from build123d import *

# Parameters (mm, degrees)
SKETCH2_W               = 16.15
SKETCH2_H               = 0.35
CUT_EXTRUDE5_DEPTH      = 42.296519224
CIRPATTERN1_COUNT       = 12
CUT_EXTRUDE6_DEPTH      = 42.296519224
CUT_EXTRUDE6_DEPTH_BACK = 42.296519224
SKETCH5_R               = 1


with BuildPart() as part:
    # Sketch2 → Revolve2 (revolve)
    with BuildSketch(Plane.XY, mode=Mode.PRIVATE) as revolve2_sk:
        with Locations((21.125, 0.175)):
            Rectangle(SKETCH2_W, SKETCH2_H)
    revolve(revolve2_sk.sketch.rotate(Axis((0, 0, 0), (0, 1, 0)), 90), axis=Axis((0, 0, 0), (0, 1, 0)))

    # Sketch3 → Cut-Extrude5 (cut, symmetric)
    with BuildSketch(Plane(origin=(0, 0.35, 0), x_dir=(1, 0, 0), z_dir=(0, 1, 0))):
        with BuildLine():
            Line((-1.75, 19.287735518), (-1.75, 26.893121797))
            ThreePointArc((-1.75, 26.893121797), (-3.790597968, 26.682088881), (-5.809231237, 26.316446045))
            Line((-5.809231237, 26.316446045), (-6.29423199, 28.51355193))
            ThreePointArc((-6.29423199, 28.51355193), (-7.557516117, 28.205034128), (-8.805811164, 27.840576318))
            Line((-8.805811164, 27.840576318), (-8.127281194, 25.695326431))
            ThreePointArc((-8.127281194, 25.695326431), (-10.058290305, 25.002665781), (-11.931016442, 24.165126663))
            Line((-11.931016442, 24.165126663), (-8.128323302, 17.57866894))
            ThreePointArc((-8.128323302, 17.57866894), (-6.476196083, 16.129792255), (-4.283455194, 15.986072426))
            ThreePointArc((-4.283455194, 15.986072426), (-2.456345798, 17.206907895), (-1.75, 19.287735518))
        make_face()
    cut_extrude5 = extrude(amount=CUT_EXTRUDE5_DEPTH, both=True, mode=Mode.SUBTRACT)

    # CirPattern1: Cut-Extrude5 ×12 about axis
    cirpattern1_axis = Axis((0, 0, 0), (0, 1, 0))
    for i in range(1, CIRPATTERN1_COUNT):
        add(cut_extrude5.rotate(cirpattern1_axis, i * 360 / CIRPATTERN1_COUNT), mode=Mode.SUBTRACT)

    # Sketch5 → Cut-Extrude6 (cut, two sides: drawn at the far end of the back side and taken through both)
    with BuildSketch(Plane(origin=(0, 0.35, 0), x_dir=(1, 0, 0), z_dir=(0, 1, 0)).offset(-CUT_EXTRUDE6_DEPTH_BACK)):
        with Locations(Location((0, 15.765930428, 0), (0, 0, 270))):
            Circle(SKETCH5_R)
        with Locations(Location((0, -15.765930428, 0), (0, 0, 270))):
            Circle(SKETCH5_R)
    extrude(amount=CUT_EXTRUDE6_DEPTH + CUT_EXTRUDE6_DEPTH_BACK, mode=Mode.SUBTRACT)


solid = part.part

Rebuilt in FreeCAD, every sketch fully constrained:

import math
import FreeCAD as App
import Part
import Sketcher

V = App.Vector
Q = App.Units.Quantity


def add_polygon(sketch, points):
    """Adds a closed chain of lines whose ends are joined by coincident constraints."""
    first, n = sketch.GeometryCount, len(points)
    for a, b in zip(points, points[1:] + points[:1]):
        sketch.addGeometry(Part.LineSegment(App.Vector(*a, 0), App.Vector(*b, 0)), False)
    for i in range(n):
        sketch.addConstraint(Sketcher.Constraint("Coincident", first + i, 2, first + (i + 1) % n, 1))

doc = App.newDocument("Part")
body = doc.addObject("PartDesign::Body", "Body")

sketch1 = body.newObject("Sketcher::SketchObject", "Sketch")
sketch1.AttachmentSupport = (doc.getObject("XY_Plane"), [""])
sketch1.MapMode = "FlatFace"
add_polygon(sketch1, [(13.05, 0.35), (13.05, 0), (29.2, 0), (29.2, 0.35)])
sketch1.addConstraint(Sketcher.Constraint("Vertical", 0))
sketch1.addConstraint(Sketcher.Constraint("Horizontal", 1))
sketch1.addConstraint(Sketcher.Constraint("Vertical", 2))
sketch1.addConstraint(Sketcher.Constraint("Horizontal", 3))
sketch1.addConstraint(Sketcher.Constraint("PointOnObject", 0, 2, -1))
sketch1.addConstraint(Sketcher.Constraint("DistanceX", 1, 1, 1, 2, Q("16.15 mm")))
sketch1.addConstraint(Sketcher.Constraint("DistanceY", 0, 2, 0, 1, Q("0.35 mm")))
sketch1.addConstraint(Sketcher.Constraint("DistanceX", -1, 1, 1, 2, Q("29.2 mm")))
revolution = body.newObject("PartDesign::Revolution", "Revolution")
revolution.Profile = sketch1
revolution.ReferenceAxis = (sketch1, ["V_Axis"])
revolution.Angle = 360

sketch2 = body.newObject("Sketcher::SketchObject", "Sketch001")
sketch2.AttachmentSupport = (doc.getObject("XZ_Plane"), [""])
sketch2.MapMode = "FlatFace"
sketch2.AttachmentOffset = App.Placement(V(0, 0, -0.35), App.Rotation())
sketch2.addGeometry(Part.LineSegment(V(-1.8, -19.3, 0), V(-1.8, -26.9, 0)), False)
sketch2.addGeometry(Part.ArcOfCircle(Part.Circle(V(0, 0, 0), V(0, 0, 1), 26.9), math.radians(-102.45), math.radians(-93.72)), False)
sketch2.addGeometry(Part.LineSegment(V(-5.8, -26.3, 0), V(-6.3, -28.5, 0)), False)
sketch2.addGeometry(Part.ArcOfCircle(Part.Circle(V(0, 0, 0), V(0, 0, 1), 29.2), math.radians(-107.55), math.radians(-102.45)), False)
sketch2.addGeometry(Part.LineSegment(V(-8.8, -27.8, 0), V(-8.1, -25.7, 0)), False)
sketch2.addGeometry(Part.ArcOfCircle(Part.Circle(V(0, 0, 0), V(0, 0, 1), 26.9), math.radians(-116.28), math.radians(-107.55)), False)
sketch2.addGeometry(Part.LineSegment(V(-11.9, -24.2, 0), V(-8.1, -17.6, 0)), False)
sketch2.addGeometry(Part.ArcOfCircle(Part.Circle(V(-5.2, -19.3, 0), V(0, 0, 1), 3.4), math.radians(75), math.radians(150)), False)
sketch2.addGeometry(Part.ArcOfCircle(Part.Circle(V(-5.2, -19.3, 0), V(0, 0, 1), 3.4), math.radians(0), math.radians(75)), False)
sketch2.addConstraint(Sketcher.Constraint("Coincident", 0, 2, 1, 2))
sketch2.addConstraint(Sketcher.Constraint("Coincident", 1, 1, 2, 1))
sketch2.addConstraint(Sketcher.Constraint("Coincident", 2, 2, 3, 2))
sketch2.addConstraint(Sketcher.Constraint("Coincident", 3, 1, 4, 1))
sketch2.addConstraint(Sketcher.Constraint("Coincident", 4, 2, 5, 2))
sketch2.addConstraint(Sketcher.Constraint("Coincident", 5, 1, 6, 1))
sketch2.addConstraint(Sketcher.Constraint("Tangent", 6, 2, 7, 2))
sketch2.addConstraint(Sketcher.Constraint("Tangent", 7, 1, 8, 2))
sketch2.addConstraint(Sketcher.Constraint("Tangent", 8, 1, 0, 1))
sketch2.addConstraint(Sketcher.Constraint("Vertical", 0))
sketch2.addConstraint(Sketcher.Constraint("Coincident", 1, 3, -1, 1))
sketch2.addConstraint(Sketcher.Constraint("Coincident", 3, 3, -1, 1))
sketch2.addConstraint(Sketcher.Constraint("Coincident", 5, 3, -1, 1))
sketch2.addConstraint(Sketcher.Constraint("Equal", 1, 5))
sketch2.addConstraint(Sketcher.Constraint("Equal", 7, 8))
sketch2.addConstraint(Sketcher.Constraint("Radius", 3, Q("29.2 mm")))
sketch2.addConstraint(Sketcher.Constraint("Angle", 6, Q("60 deg")))
sketch2.addConstraint(Sketcher.Constraint("Radius", 1, Q("26.95 mm")))
sketch2.addConstraint(Sketcher.Constraint("DistanceX", 0, 2, -1, 1, Q("1.75 mm")))
sketch2.addConstraint(Sketcher.Constraint("Radius", 7, Q("3.418133 mm")))
sketch2.addConstraint(Sketcher.Constraint("DistanceX", 2, 2, 1, 1, Q("0.485001 mm")))
sketch2.addConstraint(Sketcher.Constraint("DistanceX", 1, 1, 8, 3, Q("0.641098 mm")))
sketch2.addConstraint(Sketcher.Constraint("DistanceY", 4, 2, 5, 1, Q("1.5302 mm")))
sketch2.addConstraint(Sketcher.Constraint("DistanceY", 0, 2, 0, 1, Q("7.605386 mm")))
sketch2.addConstraint(Sketcher.Constraint("DistanceX", 3, 1, -1, 1, Q("8.805811 mm")))
sketch2.addConstraint(Sketcher.Constraint("DistanceX", 6, 2, 7, 1, Q("3.844868 mm")))
pocket1 = body.newObject("PartDesign::Pocket", "Pocket")
pocket1.Profile = sketch2
pocket1.Length = 84.593038
pocket1.Midplane = True
doc.recompute()

polarpattern = body.newObject("PartDesign::PolarPattern", "PolarPattern")
polarpattern.Originals = [pocket1]
polarpattern.Axis = (doc.getObject("Y_Axis"), [""])
polarpattern.Angle = 360
polarpattern.Occurrences = 12
body.Tip = polarpattern

sketch3 = body.newObject("Sketcher::SketchObject", "Sketch002")
sketch3.AttachmentSupport = (doc.getObject("XZ_Plane"), [""])
sketch3.MapMode = "FlatFace"
sketch3.AttachmentOffset = App.Placement(V(0, 0, -0.35), App.Rotation())
sketch3.addGeometry(Part.Circle(V(0, -15.8, 0), V(0, 0, 1), 1), False)
sketch3.addGeometry(Part.Circle(V(0, 15.8, 0), V(0, 0, 1), 1), False)
sketch3.addConstraint(Sketcher.Constraint("Equal", 0, 1))
sketch3.addConstraint(Sketcher.Constraint("Symmetric", 0, 3, 1, 3, -1, 1))
sketch3.addConstraint(Sketcher.Constraint("PointOnObject", 0, 3, -2))
sketch3.addConstraint(Sketcher.Constraint("Diameter", 0, Q("2 mm")))
sketch3.addConstraint(Sketcher.Constraint("DistanceY", 0, 3, -1, 1, Q("15.76593 mm")))
pocket2 = body.newObject("PartDesign::Pocket", "Pocket001")
pocket2.Profile = sketch3
pocket2.Type = "ThroughAll"
pocket2.Midplane = True

doc.recompute()
